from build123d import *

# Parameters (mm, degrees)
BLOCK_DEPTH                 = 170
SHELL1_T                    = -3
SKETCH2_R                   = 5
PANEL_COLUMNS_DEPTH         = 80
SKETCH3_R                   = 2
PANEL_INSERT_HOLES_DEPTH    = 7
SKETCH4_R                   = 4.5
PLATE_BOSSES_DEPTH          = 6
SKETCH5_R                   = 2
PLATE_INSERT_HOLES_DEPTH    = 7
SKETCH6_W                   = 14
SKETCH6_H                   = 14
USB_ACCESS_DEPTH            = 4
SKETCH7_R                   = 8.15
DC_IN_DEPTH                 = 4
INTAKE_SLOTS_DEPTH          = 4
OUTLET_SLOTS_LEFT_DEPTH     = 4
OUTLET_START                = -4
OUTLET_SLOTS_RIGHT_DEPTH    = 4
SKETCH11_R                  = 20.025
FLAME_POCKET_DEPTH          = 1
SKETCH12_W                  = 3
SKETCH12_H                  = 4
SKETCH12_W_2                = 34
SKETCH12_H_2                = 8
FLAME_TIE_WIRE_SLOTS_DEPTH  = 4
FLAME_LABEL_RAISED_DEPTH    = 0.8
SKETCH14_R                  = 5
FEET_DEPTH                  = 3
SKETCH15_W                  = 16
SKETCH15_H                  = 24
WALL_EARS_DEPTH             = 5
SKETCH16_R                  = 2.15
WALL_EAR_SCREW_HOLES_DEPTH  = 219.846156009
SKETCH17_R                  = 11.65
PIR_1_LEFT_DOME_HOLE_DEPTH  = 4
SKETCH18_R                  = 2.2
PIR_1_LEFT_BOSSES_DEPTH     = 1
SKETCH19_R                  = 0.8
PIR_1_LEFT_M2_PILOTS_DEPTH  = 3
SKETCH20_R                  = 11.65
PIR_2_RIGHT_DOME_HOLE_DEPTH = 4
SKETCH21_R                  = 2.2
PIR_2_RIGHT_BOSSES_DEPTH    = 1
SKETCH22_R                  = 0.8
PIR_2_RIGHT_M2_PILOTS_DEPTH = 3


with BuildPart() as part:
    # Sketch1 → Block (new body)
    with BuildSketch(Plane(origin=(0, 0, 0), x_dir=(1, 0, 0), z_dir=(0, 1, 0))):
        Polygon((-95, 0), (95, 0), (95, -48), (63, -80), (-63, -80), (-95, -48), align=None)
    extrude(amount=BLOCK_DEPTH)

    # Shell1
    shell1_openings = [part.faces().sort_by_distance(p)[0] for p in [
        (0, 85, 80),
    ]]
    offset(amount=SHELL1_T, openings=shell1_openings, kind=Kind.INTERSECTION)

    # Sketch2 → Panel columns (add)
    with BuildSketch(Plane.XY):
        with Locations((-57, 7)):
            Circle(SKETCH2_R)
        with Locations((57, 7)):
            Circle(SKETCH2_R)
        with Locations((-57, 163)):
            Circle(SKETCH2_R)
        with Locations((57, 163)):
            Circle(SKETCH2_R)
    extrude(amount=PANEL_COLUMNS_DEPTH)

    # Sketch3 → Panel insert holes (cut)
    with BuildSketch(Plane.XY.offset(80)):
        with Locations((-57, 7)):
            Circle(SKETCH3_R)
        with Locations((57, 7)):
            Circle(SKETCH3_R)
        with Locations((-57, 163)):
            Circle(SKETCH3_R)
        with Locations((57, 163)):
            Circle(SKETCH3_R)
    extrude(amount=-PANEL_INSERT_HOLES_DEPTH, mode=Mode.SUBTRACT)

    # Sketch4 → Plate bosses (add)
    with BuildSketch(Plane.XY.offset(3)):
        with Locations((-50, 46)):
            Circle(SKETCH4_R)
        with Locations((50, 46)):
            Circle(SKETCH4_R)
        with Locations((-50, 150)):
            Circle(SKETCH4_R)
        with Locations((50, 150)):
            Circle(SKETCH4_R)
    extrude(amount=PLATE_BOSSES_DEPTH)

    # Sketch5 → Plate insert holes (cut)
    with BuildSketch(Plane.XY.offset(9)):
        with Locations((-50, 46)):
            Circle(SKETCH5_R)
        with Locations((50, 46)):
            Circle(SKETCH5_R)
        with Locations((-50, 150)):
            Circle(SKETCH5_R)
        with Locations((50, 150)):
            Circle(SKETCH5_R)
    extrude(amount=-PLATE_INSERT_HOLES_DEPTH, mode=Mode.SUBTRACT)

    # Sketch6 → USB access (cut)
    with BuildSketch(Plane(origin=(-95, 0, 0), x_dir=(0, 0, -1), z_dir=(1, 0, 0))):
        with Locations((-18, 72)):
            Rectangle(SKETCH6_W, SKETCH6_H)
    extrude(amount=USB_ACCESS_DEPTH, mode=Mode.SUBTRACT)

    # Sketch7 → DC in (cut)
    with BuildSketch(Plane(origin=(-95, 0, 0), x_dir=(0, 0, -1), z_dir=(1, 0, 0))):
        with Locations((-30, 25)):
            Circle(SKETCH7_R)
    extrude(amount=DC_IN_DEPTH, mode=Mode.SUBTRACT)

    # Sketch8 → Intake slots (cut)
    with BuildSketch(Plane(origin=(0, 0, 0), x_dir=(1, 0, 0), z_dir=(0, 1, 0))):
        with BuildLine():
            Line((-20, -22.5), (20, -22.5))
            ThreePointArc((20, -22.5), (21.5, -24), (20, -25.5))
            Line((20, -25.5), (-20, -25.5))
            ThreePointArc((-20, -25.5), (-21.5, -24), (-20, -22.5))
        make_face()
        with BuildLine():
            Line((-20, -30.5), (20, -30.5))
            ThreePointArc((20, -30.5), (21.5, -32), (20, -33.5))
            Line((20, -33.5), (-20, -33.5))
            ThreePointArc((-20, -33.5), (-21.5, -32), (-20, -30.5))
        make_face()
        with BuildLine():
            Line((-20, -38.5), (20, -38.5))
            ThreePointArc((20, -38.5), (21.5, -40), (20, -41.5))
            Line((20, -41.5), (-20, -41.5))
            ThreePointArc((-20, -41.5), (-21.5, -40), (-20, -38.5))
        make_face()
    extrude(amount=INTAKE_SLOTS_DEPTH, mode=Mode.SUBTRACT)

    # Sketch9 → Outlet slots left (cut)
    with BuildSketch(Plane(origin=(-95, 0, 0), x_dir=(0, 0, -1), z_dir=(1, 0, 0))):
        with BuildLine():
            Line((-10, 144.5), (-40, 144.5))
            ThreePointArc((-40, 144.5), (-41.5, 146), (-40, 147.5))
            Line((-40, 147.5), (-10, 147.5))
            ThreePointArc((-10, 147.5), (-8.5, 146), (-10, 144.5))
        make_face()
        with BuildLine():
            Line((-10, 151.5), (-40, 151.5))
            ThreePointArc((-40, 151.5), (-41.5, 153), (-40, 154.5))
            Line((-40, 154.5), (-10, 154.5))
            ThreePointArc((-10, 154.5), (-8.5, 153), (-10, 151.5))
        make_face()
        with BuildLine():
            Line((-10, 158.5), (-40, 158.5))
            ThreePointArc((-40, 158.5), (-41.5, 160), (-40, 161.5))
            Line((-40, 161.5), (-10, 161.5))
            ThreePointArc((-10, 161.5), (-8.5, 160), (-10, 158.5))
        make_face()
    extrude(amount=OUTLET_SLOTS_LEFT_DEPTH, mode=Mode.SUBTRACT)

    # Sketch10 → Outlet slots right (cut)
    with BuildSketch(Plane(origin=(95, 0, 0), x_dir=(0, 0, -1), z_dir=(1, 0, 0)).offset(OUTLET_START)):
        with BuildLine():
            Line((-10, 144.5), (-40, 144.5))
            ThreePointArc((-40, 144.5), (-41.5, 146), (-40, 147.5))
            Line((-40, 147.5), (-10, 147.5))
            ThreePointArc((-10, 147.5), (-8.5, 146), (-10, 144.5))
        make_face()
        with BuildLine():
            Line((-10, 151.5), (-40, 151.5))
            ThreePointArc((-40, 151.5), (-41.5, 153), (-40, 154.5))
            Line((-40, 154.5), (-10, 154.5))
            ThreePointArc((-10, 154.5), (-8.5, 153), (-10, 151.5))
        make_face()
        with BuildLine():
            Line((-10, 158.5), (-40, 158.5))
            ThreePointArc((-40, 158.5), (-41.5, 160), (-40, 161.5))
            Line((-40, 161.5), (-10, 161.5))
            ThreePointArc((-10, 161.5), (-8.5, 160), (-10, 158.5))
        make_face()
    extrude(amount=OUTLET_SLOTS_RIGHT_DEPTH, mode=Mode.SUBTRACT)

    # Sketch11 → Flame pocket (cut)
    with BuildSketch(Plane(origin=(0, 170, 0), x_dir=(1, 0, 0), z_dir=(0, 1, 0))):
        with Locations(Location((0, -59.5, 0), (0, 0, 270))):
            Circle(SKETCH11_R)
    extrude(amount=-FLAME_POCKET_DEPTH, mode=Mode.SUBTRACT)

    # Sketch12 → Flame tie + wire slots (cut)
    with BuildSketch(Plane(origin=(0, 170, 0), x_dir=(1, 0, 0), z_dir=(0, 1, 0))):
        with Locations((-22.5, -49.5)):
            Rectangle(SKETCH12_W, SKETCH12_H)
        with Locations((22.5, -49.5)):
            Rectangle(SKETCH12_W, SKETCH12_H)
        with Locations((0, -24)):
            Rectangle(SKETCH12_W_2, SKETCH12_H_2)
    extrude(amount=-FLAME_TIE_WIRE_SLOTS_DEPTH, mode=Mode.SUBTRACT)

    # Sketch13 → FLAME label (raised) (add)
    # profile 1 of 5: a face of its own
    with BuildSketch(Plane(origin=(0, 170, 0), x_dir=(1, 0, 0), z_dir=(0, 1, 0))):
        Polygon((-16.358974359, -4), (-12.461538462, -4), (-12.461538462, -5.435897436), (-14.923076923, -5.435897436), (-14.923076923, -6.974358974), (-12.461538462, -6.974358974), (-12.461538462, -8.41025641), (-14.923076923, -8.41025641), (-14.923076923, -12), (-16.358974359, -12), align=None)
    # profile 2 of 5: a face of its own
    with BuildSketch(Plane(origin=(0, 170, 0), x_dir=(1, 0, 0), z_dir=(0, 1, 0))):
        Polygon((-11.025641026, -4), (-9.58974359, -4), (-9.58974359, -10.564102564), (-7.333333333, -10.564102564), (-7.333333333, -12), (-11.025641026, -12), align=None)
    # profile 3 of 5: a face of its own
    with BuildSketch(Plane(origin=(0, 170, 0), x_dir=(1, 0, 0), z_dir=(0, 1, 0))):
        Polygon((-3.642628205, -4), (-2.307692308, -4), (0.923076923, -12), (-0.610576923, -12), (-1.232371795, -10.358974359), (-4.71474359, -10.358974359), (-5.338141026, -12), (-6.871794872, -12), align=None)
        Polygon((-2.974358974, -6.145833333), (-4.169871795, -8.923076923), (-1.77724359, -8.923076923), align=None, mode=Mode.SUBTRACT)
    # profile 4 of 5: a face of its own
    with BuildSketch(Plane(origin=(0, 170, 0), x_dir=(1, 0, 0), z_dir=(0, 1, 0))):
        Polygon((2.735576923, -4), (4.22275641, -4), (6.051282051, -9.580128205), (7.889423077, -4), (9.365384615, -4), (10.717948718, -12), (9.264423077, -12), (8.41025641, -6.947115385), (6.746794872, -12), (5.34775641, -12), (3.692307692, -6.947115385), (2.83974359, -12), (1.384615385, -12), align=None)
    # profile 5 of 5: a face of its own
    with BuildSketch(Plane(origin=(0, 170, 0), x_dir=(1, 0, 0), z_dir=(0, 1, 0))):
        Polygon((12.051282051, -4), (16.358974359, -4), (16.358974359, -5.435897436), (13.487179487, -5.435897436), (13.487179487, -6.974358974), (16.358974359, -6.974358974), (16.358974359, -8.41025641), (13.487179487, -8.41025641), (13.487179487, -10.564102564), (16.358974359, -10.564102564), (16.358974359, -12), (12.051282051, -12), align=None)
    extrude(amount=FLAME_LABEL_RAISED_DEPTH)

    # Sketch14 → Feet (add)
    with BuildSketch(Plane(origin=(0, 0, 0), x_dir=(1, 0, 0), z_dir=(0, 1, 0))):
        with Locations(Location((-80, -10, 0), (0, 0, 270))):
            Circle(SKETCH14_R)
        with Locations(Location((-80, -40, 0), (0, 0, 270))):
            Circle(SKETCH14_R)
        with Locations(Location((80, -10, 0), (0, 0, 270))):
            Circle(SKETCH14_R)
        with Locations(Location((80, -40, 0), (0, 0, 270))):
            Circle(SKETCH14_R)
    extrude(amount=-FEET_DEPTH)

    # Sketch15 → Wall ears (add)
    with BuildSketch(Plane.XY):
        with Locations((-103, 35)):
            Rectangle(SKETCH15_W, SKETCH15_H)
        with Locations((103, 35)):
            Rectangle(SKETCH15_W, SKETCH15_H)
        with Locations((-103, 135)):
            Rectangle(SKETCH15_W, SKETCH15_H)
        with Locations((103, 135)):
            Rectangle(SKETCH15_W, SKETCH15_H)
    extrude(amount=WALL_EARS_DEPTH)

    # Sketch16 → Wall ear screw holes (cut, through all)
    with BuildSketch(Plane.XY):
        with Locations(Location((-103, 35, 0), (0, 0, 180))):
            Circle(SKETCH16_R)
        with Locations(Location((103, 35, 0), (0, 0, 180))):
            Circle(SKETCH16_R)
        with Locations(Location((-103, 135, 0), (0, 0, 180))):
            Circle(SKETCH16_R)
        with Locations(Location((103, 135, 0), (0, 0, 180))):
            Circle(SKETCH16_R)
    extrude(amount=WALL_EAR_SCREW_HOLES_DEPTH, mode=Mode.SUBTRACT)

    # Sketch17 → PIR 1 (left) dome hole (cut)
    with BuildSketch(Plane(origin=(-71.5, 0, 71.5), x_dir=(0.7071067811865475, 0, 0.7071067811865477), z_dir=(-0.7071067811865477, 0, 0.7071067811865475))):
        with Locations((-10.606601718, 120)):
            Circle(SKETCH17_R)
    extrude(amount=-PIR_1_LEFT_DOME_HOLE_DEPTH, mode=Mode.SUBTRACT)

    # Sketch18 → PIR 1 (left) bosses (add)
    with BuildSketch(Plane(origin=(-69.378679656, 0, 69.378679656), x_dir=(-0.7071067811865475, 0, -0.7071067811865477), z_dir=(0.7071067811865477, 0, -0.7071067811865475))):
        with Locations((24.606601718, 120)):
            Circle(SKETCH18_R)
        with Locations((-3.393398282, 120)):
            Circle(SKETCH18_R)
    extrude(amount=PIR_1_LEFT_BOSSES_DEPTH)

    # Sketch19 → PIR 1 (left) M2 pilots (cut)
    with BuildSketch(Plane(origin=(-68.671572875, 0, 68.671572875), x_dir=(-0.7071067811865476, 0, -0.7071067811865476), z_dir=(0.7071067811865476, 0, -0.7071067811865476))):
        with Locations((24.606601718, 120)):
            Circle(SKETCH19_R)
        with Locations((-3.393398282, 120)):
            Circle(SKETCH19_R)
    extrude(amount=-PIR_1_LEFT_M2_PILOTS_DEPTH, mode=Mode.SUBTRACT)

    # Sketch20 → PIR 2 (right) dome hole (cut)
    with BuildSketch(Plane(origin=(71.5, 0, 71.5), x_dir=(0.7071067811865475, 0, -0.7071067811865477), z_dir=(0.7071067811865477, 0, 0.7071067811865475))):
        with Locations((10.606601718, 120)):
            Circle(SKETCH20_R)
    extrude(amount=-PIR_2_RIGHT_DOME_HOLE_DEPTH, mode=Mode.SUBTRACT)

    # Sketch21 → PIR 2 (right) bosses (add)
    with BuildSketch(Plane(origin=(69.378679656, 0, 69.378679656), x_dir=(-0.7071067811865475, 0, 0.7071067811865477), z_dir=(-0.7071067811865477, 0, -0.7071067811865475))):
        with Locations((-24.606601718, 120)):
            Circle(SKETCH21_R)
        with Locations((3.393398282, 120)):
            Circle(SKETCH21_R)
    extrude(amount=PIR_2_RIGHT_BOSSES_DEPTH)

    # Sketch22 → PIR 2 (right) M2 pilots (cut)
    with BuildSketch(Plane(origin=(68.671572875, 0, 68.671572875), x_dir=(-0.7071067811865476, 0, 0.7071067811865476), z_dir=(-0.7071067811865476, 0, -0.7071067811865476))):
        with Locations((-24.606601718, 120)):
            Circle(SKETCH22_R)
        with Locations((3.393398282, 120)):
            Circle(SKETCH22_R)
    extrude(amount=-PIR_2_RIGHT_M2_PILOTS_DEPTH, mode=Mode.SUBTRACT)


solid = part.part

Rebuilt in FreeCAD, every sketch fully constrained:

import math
import FreeCAD as App
import Part
import Sketcher
Q = App.Units.Quantity


def faces_at(feature, points):
    """Names of the faces that lie closest to the given points."""
    faces = feature.Shape.Faces
    near = lambda p: min(range(len(faces)), key=lambda i: faces[i].distToShape(Part.Vertex(*p))[0])
    return sorted({f"Face{near(p) + 1}" for p in points})


def add_polygon(sketch, points):
    """Adds a closed chain of lines whose ends are joined by coincident constraints."""
    first, n = sketch.GeometryCount, len(points)
    for a, b in zip(points, points[1:] + points[:1]):
        sketch.addGeometry(Part.LineSegment(App.Vector(*a, 0), App.Vector(*b, 0)), False)
    for i in range(n):
        sketch.addConstraint(Sketcher.Constraint("Coincident", first + i, 2, first + (i + 1) % n, 1))

doc = App.newDocument("Part")
body = doc.addObject("PartDesign::Body", "Body")

sketch1 = doc.addObject("Sketcher::SketchObject", "Sketch")
body.addObject(sketch1)
sketch1.AttachmentSupport = (doc.XZ_Plane, [""])
sketch1.MapMode = "FlatFace"
add_polygon(sketch1, [(95, 0), (-95, 0), (-95, 48), (-63, 80), (63, 80), (95, 48)])
sketch1.addConstraint([
    Sketcher.Constraint("Horizontal", 0),
    Sketcher.Constraint("Vertical", 1),
    Sketcher.Constraint("Horizontal", 3),
    Sketcher.Constraint("Vertical", 5),
    Sketcher.Constraint("Symmetric", 0, 2, 5, 2, -1, 1),
    Sketcher.Constraint("Perpendicular", 2, 4),
    Sketcher.Constraint("Horizontal", 1, 2, 4, 2),
    Sketcher.Constraint("Equal", 2, 4),
    Sketcher.Constraint("DistanceX", 0, 2, 0, 1, Q("190 mm")),
    Sketcher.Constraint("DistanceX", 3, 1, 3, 2, Q("126 mm")),
    Sketcher.Constraint("DistanceY", 1, 1, 1, 2, Q("48 mm")),
])
pad1 = doc.addObject("PartDesign::Pad", "Pad")
body.addObject(pad1)
pad1.Profile = sketch1
pad1.Length = 170
pad1.Reversed = True
doc.recompute()

thickness = doc.addObject("PartDesign::Thickness", "Thickness")
body.addObject(thickness)
thickness.Base = (pad1, faces_at(pad1, [(0, 85, 80)]))
thickness.Value = 3
thickness.Reversed = True
thickness.Join = "Intersection"

sketch2 = doc.addObject("Sketcher::SketchObject", "Sketch001")
body.addObject(sketch2)
sketch2.AttachmentSupport = (doc.XY_Plane, [""])
sketch2.MapMode = "FlatFace"
sketch2.addGeometry([
    Part.Circle(App.Vector(-57, 7, 0), App.Vector(0, 0, 1), 5),
    Part.Circle(App.Vector(57, 7, 0), App.Vector(0, 0, 1), 5),
    Part.Circle(App.Vector(-57, 163, 0), App.Vector(0, 0, 1), 5),
    Part.Circle(App.Vector(57, 163, 0), App.Vector(0, 0, 1), 5),
], False)
sketch2.addConstraint([
    Sketcher.Constraint("Equal", 0, 1),
    Sketcher.Constraint("Equal", 1, 2),
    Sketcher.Constraint("Equal", 2, 3),
    Sketcher.Constraint("Symmetric", 0, 3, 1, 3, -2),
    Sketcher.Constraint("Symmetric", 2, 3, 3, 3, -2),
    Sketcher.Constraint("Vertical", 0, 3, 2, 3),
    Sketcher.Constraint("Diameter", 0, Q("10 mm")),
    Sketcher.Constraint("DistanceX", 0, 3, -1, 1, Q("57 mm")),
    Sketcher.Constraint("DistanceY", -1, 1, 0, 3, Q("7 mm")),
    Sketcher.Constraint("DistanceY", -1, 1, 2, 3, Q("163 mm")),
])
pad2 = doc.addObject("PartDesign::Pad", "Pad001")
body.addObject(pad2)
pad2.Profile = sketch2
pad2.Length = 80

sketch3 = doc.addObject("Sketcher::SketchObject", "Sketch002")
body.addObject(sketch3)
sketch3.AttachmentSupport = (doc.XY_Plane, [""])
sketch3.MapMode = "FlatFace"
sketch3.AttachmentOffset = App.Placement(App.Vector(0, 0, 80), App.Rotation())
sketch3.addGeometry([
    Part.Circle(App.Vector(-57, 7, 0), App.Vector(0, 0, 1), 2),
    Part.Circle(App.Vector(57, 7, 0), App.Vector(0, 0, 1), 2),
    Part.Circle(App.Vector(-57, 163, 0), App.Vector(0, 0, 1), 2),
    Part.Circle(App.Vector(57, 163, 0), App.Vector(0, 0, 1), 2),
], False)
sketch3.addConstraint([
    Sketcher.Constraint("Equal", 0, 1),
    Sketcher.Constraint("Equal", 1, 2),
    Sketcher.Constraint("Equal", 2, 3),
    Sketcher.Constraint("Symmetric", 0, 3, 1, 3, -2),
    Sketcher.Constraint("Symmetric", 2, 3, 3, 3, -2),
    Sketcher.Constraint("Vertical", 0, 3, 2, 3),
    Sketcher.Constraint("Diameter", 0, Q("4 mm")),
    Sketcher.Constraint("DistanceX", 0, 3, -1, 1, Q("57 mm")),
    Sketcher.Constraint("DistanceY", -1, 1, 0, 3, Q("7 mm")),
    Sketcher.Constraint("DistanceY", -1, 1, 2, 3, Q("163 mm")),
])
pocket1 = doc.addObject("PartDesign::Pocket", "Pocket")
body.addObject(pocket1)
pocket1.Profile = sketch3
pocket1.Length = 7

sketch4 = doc.addObject("Sketcher::SketchObject", "Sketch003")
body.addObject(sketch4)
sketch4.AttachmentSupport = (doc.XY_Plane, [""])
sketch4.MapMode = "FlatFace"
sketch4.AttachmentOffset = App.Placement(App.Vector(0, 0, 3), App.Rotation())
sketch4.addGeometry([
    Part.Circle(App.Vector(-50, 46, 0), App.Vector(0, 0, 1), 4.5),
    Part.Circle(App.Vector(50, 46, 0), App.Vector(0, 0, 1), 4.5),
    Part.Circle(App.Vector(-50, 150, 0), App.Vector(0, 0, 1), 4.5),
    Part.Circle(App.Vector(50, 150, 0), App.Vector(0, 0, 1), 4.5),
], False)
sketch4.addConstraint([
    Sketcher.Constraint("Equal", 0, 1),
    Sketcher.Constraint("Equal", 1, 2),
    Sketcher.Constraint("Equal", 2, 3),
    Sketcher.Constraint("Symmetric", 0, 3, 1, 3, -2),
    Sketcher.Constraint("Symmetric", 2, 3, 3, 3, -2),
    Sketcher.Constraint("Vertical", 0, 3, 2, 3),
    Sketcher.Constraint("Diameter", 0, Q("9 mm")),
    Sketcher.Constraint("DistanceX", 0, 3, -1, 1, Q("50 mm")),
    Sketcher.Constraint("DistanceY", -1, 1, 0, 3, Q("46 mm")),
    Sketcher.Constraint("DistanceY", -1, 1, 2, 3, Q("150 mm")),
])
pad3 = doc.addObject("PartDesign::Pad", "Pad002")
body.addObject(pad3)
pad3.Profile = sketch4
pad3.Length = 6

sketch5 = doc.addObject("Sketcher::SketchObject", "Sketch004")
body.addObject(sketch5)
sketch5.AttachmentSupport = (doc.XY_Plane, [""])
sketch5.MapMode = "FlatFace"
sketch5.AttachmentOffset = App.Placement(App.Vector(0, 0, 9), App.Rotation())
sketch5.addGeometry([
    Part.Circle(App.Vector(-50, 46, 0), App.Vector(0, 0, 1), 2),
    Part.Circle(App.Vector(50, 46, 0), App.Vector(0, 0, 1), 2),
    Part.Circle(App.Vector(-50, 150, 0), App.Vector(0, 0, 1), 2),
    Part.Circle(App.Vector(50, 150, 0), App.Vector(0, 0, 1), 2),
], False)
sketch5.addConstraint([
    Sketcher.Constraint("Equal", 0, 1),
    Sketcher.Constraint("Equal", 1, 2),
    Sketcher.Constraint("Equal", 2, 3),
    Sketcher.Constraint("Symmetric", 0, 3, 1, 3, -2),
    Sketcher.Constraint("Symmetric", 2, 3, 3, 3, -2),
    Sketcher.Constraint("Vertical", 0, 3, 2, 3),
    Sketcher.Constraint("Diameter", 0, Q("4 mm")),
    Sketcher.Constraint("DistanceX", 0, 3, -1, 1, Q("50 mm")),
    Sketcher.Constraint("DistanceY", -1, 1, 0, 3, Q("46 mm")),
    Sketcher.Constraint("DistanceY", -1, 1, 2, 3, Q("150 mm")),
])
pocket2 = doc.addObject("PartDesign::Pocket", "Pocket001")
body.addObject(pocket2)
pocket2.Profile = sketch5
pocket2.Length = 7

sketch6 = doc.addObject("Sketcher::SketchObject", "Sketch005")
body.addObject(sketch6)
sketch6.AttachmentSupport = (doc.YZ_Plane, [""])
sketch6.MapMode = "FlatFace"
sketch6.AttachmentOffset = App.Placement(App.Vector(0, 0, -95), App.Rotation())
add_polygon(sketch6, [(79, 25), (65, 25), (65, 11), (79, 11)])
sketch6.addConstraint([
    Sketcher.Constraint("Horizontal", 0),
    Sketcher.Constraint("Vertical", 1),
    Sketcher.Constraint("Horizontal", 2),
    Sketcher.Constraint("Vertical", 3),
    Sketcher.Constraint("Equal", 2, 1),
    Sketcher.Constraint("DistanceX", 0, 2, 0, 1, Q("14 mm")),
    Sketcher.Constraint("DistanceX", -1, 1, 0, 2, Q("65 mm")),
    Sketcher.Constraint("DistanceY", -1, 1, 0, 2, Q("25 mm")),
])
pocket3 = doc.addObject("PartDesign::Pocket", "Pocket002")
body.addObject(pocket3)
pocket3.Profile = sketch6
pocket3.Length = 4
pocket3.Reversed = True

sketch7 = doc.addObject("Sketcher::SketchObject", "Sketch006")
body.addObject(sketch7)
sketch7.AttachmentSupport = (doc.YZ_Plane, [""])
sketch7.MapMode = "FlatFace"
sketch7.AttachmentOffset = App.Placement(App.Vector(0, 0, -95), App.Rotation())
sketch7.addGeometry(Part.Circle(App.Vector(25, 30, 0), App.Vector(0, 0, 1), 8), False)
sketch7.addConstraint([
    Sketcher.Constraint("Diameter", 0, Q("16.3 mm")),
    Sketcher.Constraint("DistanceX", -1, 1, 0, 3, Q("25 mm")),
    Sketcher.Constraint("DistanceY", -1, 1, 0, 3, Q("30 mm")),
])
pocket4 = doc.addObject("PartDesign::Pocket", "Pocket003")
body.addObject(pocket4)
pocket4.Profile = sketch7
pocket4.Length = 4
pocket4.Reversed = True

sketch8 = doc.addObject("Sketcher::SketchObject", "Sketch007")
body.addObject(sketch8)
sketch8.AttachmentSupport = (doc.XZ_Plane, [""])
sketch8.MapMode = "FlatFace"
sketch8.addGeometry([
    Part.LineSegment(App.Vector(20, 22.5, 0), App.Vector(-20, 22.5, 0)),
    Part.ArcOfCircle(Part.Circle(App.Vector(-20, 24, 0), App.Vector(0, 0, 1), 1.5), math.radians(90), math.radians(270)),
    Part.LineSegment(App.Vector(-20, 25.5, 0), App.Vector(20, 25.5, 0)),
    Part.ArcOfCircle(Part.Circle(App.Vector(20, 24, 0), App.Vector(0, 0, 1), 1.5), math.radians(-90), math.radians(90)),
    Part.LineSegment(App.Vector(20, 30.5, 0), App.Vector(-20, 30.5, 0)),
    Part.ArcOfCircle(Part.Circle(App.Vector(-20, 32, 0), App.Vector(0, 0, 1), 1.5), math.radians(90), math.radians(270)),
    Part.LineSegment(App.Vector(-20, 33.5, 0), App.Vector(20, 33.5, 0)),
    Part.ArcOfCircle(Part.Circle(App.Vector(20, 32, 0), App.Vector(0, 0, 1), 1.5), math.radians(-90), math.radians(90)),
    Part.LineSegment(App.Vector(20, 38.5, 0), App.Vector(-20, 38.5, 0)),
    Part.ArcOfCircle(Part.Circle(App.Vector(-20, 40, 0), App.Vector(0, 0, 1), 1.5), math.radians(90), math.radians(270)),
    Part.LineSegment(App.Vector(-20, 41.5, 0), App.Vector(20, 41.5, 0)),
    Part.ArcOfCircle(Part.Circle(App.Vector(20, 40, 0), App.Vector(0, 0, 1), 1.5), math.radians(-90), math.radians(90)),
], False)
sketch8.addConstraint([
    Sketcher.Constraint("Tangent", 0, 2, 1, 2),
    Sketcher.Constraint("Tangent", 1, 1, 2, 1),
    Sketcher.Constraint("Tangent", 2, 2, 3, 2),
    Sketcher.Constraint("Tangent", 3, 1, 0, 1),
    Sketcher.Constraint("Tangent", 4, 2, 5, 2),
    Sketcher.Constraint("Tangent", 5, 1, 6, 1),
    Sketcher.Constraint("Tangent", 6, 2, 7, 2),
    Sketcher.Constraint("Tangent", 7, 1, 4, 1),
    Sketcher.Constraint("Tangent", 8, 2, 9, 2),
    Sketcher.Constraint("Tangent", 9, 1, 10, 1),
    Sketcher.Constraint("Tangent", 10, 2, 11, 2),
    Sketcher.Constraint("Tangent", 11, 1, 8, 1),
    Sketcher.Constraint("Horizontal", 0),
    Sketcher.Constraint("Horizontal", 2),
    Sketcher.Constraint("Horizontal", 4),
    Sketcher.Constraint("Horizontal", 6),
    Sketcher.Constraint("Horizontal", 8),
    Sketcher.Constraint("Horizontal", 10),
    Sketcher.Constraint("Equal", 3, 5),
    Sketcher.Constraint("Equal", 7, 9),
    Sketcher.Constraint("Vertical", 1, 3, 5, 3),
    Sketcher.Constraint("Vertical", 3, 3, 7, 3),
    Sketcher.Constraint("Vertical", 5, 3, 9, 3),
    Sketcher.Constraint("Vertical", 7, 3, 11, 3),
    Sketcher.Constraint("Radius", 1, Q("1.5 mm")),
    Sketcher.Constraint("DistanceX", 0, 2, 0, 1, Q("40 mm")),
    Sketcher.Constraint("DistanceX", 1, 3, -1, 1, Q("20 mm")),
    Sketcher.Constraint("DistanceY", -1, 1, 1, 3, Q("24 mm")),
    Sketcher.Constraint("DistanceY", -1, 1, 5, 3, Q("32 mm")),
    Sketcher.Constraint("DistanceY", -1, 1, 9, 3, Q("40 mm")),
])
pocket5 = doc.addObject("PartDesign::Pocket", "Pocket004")
body.addObject(pocket5)
pocket5.Profile = sketch8
pocket5.Length = 4

sketch9 = doc.addObject("Sketcher::SketchObject", "Sketch008")
body.addObject(sketch9)
sketch9.AttachmentSupport = (doc.YZ_Plane, [""])
sketch9.MapMode = "FlatFace"
sketch9.AttachmentOffset = App.Placement(App.Vector(0, 0, -95), App.Rotation())
sketch9.addGeometry([
    Part.LineSegment(App.Vector(144.5, 40, 0), App.Vector(144.5, 10, 0)),
    Part.ArcOfCircle(Part.Circle(App.Vector(146, 10, 0), App.Vector(0, 0, 1), 1.5), math.radians(180), math.radians(360)),
    Part.LineSegment(App.Vector(147.5, 10, 0), App.Vector(147.5, 40, 0)),
    Part.ArcOfCircle(Part.Circle(App.Vector(146, 40, 0), App.Vector(0, 0, 1), 1.5), math.radians(0), math.radians(180)),
    Part.LineSegment(App.Vector(151.5, 40, 0), App.Vector(151.5, 10, 0)),
    Part.ArcOfCircle(Part.Circle(App.Vector(153, 10, 0), App.Vector(0, 0, 1), 1.5), math.radians(180), math.radians(360)),
    Part.LineSegment(App.Vector(154.5, 10, 0), App.Vector(154.5, 40, 0)),
    Part.ArcOfCircle(Part.Circle(App.Vector(153, 40, 0), App.Vector(0, 0, 1), 1.5), math.radians(0), math.radians(180)),
    Part.LineSegment(App.Vector(158.5, 40, 0), App.Vector(158.5, 10, 0)),
    Part.ArcOfCircle(Part.Circle(App.Vector(160, 10, 0), App.Vector(0, 0, 1), 1.5), math.radians(180), math.radians(360)),
    Part.LineSegment(App.Vector(161.5, 10, 0), App.Vector(161.5, 40, 0)),
    Part.ArcOfCircle(Part.Circle(App.Vector(160, 40, 0), App.Vector(0, 0, 1), 1.5), math.radians(0), math.radians(180)),
], False)
sketch9.addConstraint([
    Sketcher.Constraint("Tangent", 0, 2, 1, 1),
    Sketcher.Constraint("Tangent", 1, 2, 2, 1),
    Sketcher.Constraint("Tangent", 2, 2, 3, 1),
    Sketcher.Constraint("Tangent", 3, 2, 0, 1),
    Sketcher.Constraint("Tangent", 4, 2, 5, 1),
    Sketcher.Constraint("Tangent", 5, 2, 6, 1),
    Sketcher.Constraint("Tangent", 6, 2, 7, 1),
    Sketcher.Constraint("Tangent", 7, 2, 4, 1),
    Sketcher.Constraint("Tangent", 8, 2, 9, 1),
    Sketcher.Constraint("Tangent", 9, 2, 10, 1),
    Sketcher.Constraint("Tangent", 10, 2, 11, 1),
    Sketcher.Constraint("Tangent", 11, 2, 8, 1),
    Sketcher.Constraint("Vertical", 0),
    Sketcher.Constraint("Vertical", 2),
    Sketcher.Constraint("Vertical", 4),
    Sketcher.Constraint("Vertical", 6),
    Sketcher.Constraint("Vertical", 8),
    Sketcher.Constraint("Vertical", 10),
    Sketcher.Constraint("Equal", 3, 5),
    Sketcher.Constraint("Equal", 7, 9),
    Sketcher.Constraint("Horizontal", 1, 3, 5, 3),
    Sketcher.Constraint("Horizontal", 3, 3, 7, 3),
    Sketcher.Constraint("Horizontal", 5, 3, 9, 3),
    Sketcher.Constraint("Horizontal", 7, 3, 11, 3),
    Sketcher.Constraint("Radius", 1, Q("1.5 mm")),
    Sketcher.Constraint("DistanceY", 0, 2, 0, 1, Q("30 mm")),
    Sketcher.Constraint("DistanceX", -1, 1, 1, 3, Q("146 mm")),
    Sketcher.Constraint("DistanceY", -1, 1, 1, 3, Q("10 mm")),
    Sketcher.Constraint("DistanceX", -1, 1, 5, 3, Q("153 mm")),
    Sketcher.Constraint("DistanceX", -1, 1, 9, 3, Q("160 mm")),
])
pocket6 = doc.addObject("PartDesign::Pocket", "Pocket005")
body.addObject(pocket6)
pocket6.Profile = sketch9
pocket6.Length = 4
pocket6.Reversed = True

sketch10 = doc.addObject("Sketcher::SketchObject", "Sketch009")
body.addObject(sketch10)
sketch10.AttachmentSupport = (doc.YZ_Plane, [""])
sketch10.MapMode = "FlatFace"
sketch10.AttachmentOffset = App.Placement(App.Vector(0, 0, 91), App.Rotation())
sketch10.addGeometry([
    Part.LineSegment(App.Vector(144.5, 40, 0), App.Vector(144.5, 10, 0)),
    Part.ArcOfCircle(Part.Circle(App.Vector(146, 10, 0), App.Vector(0, 0, 1), 1.5), math.radians(180), math.radians(360)),
    Part.LineSegment(App.Vector(147.5, 10, 0), App.Vector(147.5, 40, 0)),
    Part.ArcOfCircle(Part.Circle(App.Vector(146, 40, 0), App.Vector(0, 0, 1), 1.5), math.radians(0), math.radians(180)),
    Part.LineSegment(App.Vector(151.5, 40, 0), App.Vector(151.5, 10, 0)),
    Part.ArcOfCircle(Part.Circle(App.Vector(153, 10, 0), App.Vector(0, 0, 1), 1.5), math.radians(180), math.radians(360)),
    Part.LineSegment(App.Vector(154.5, 10, 0), App.Vector(154.5, 40, 0)),
    Part.ArcOfCircle(Part.Circle(App.Vector(153, 40, 0), App.Vector(0, 0, 1), 1.5), math.radians(0), math.radians(180)),
    Part.LineSegment(App.Vector(158.5, 40, 0), App.Vector(158.5, 10, 0)),
    Part.ArcOfCircle(Part.Circle(App.Vector(160, 10, 0), App.Vector(0, 0, 1), 1.5), math.radians(180), math.radians(360)),
    Part.LineSegment(App.Vector(161.5, 10, 0), App.Vector(161.5, 40, 0)),
    Part.ArcOfCircle(Part.Circle(App.Vector(160, 40, 0), App.Vector(0, 0, 1), 1.5), math.radians(0), math.radians(180)),
], False)
sketch10.addConstraint([
    Sketcher.Constraint("Tangent", 0, 2, 1, 1),
    Sketcher.Constraint("Tangent", 1, 2, 2, 1),
    Sketcher.Constraint("Tangent", 2, 2, 3, 1),
    Sketcher.Constraint("Tangent", 3, 2, 0, 1),
    Sketcher.Constraint("Tangent", 4, 2, 5, 1),
    Sketcher.Constraint("Tangent", 5, 2, 6, 1),
    Sketcher.Constraint("Tangent", 6, 2, 7, 1),
    Sketcher.Constraint("Tangent", 7, 2, 4, 1),
    Sketcher.Constraint("Tangent", 8, 2, 9, 1),
    Sketcher.Constraint("Tangent", 9, 2, 10, 1),
    Sketcher.Constraint("Tangent", 10, 2, 11, 1),
    Sketcher.Constraint("Tangent", 11, 2, 8, 1),
    Sketcher.Constraint("Vertical", 0),
    Sketcher.Constraint("Vertical", 2),
    Sketcher.Constraint("Vertical", 4),
    Sketcher.Constraint("Vertical", 6),
    Sketcher.Constraint("Vertical", 8),
    Sketcher.Constraint("Vertical", 10),
    Sketcher.Constraint("Equal", 3, 5),
    Sketcher.Constraint("Equal", 7, 9),
    Sketcher.Constraint("Horizontal", 1, 3, 5, 3),
    Sketcher.Constraint("Horizontal", 3, 3, 7, 3),
    Sketcher.Constraint("Horizontal", 5, 3, 9, 3),
    Sketcher.Constraint("Horizontal", 7, 3, 11, 3),
    Sketcher.Constraint("Radius", 1, Q("1.5 mm")),
    Sketcher.Constraint("DistanceY", 0, 2, 0, 1, Q("30 mm")),
    Sketcher.Constraint("DistanceX", -1, 1, 1, 3, Q("146 mm")),
    Sketcher.Constraint("DistanceY", -1, 1, 1, 3, Q("10 mm")),
    Sketcher.Constraint("DistanceX", -1, 1, 5, 3, Q("153 mm")),
    Sketcher.Constraint("DistanceX", -1, 1, 9, 3, Q("160 mm")),
])
pocket7 = doc.addObject("PartDesign::Pocket", "Pocket006")
body.addObject(pocket7)
pocket7.Profile = sketch10
pocket7.Length = 4
pocket7.Reversed = True

sketch11 = doc.addObject("Sketcher::SketchObject", "Sketch010")
body.addObject(sketch11)
sketch11.AttachmentSupport = (doc.XZ_Plane, [""])
sketch11.MapMode = "FlatFace"
sketch11.AttachmentOffset = App.Placement(App.Vector(0, 0, -170), App.Rotation())
sketch11.addGeometry(Part.Circle(App.Vector(0, 60, 0), App.Vector(0, 0, 1), 20), False)
sketch11.addConstraint([
    Sketcher.Constraint("PointOnObject", 0, 3, -2),
    Sketcher.Constraint("Diameter", 0, Q("40.05 mm")),
    Sketcher.Constraint("DistanceY", -1, 1, 0, 3, Q("59.5 mm")),
])
pocket8 = doc.addObject("PartDesign::Pocket", "Pocket007")
body.addObject(pocket8)
pocket8.Profile = sketch11
pocket8.Length = 1
pocket8.Reversed = True

sketch12 = doc.addObject("Sketcher::SketchObject", "Sketch011")
body.addObject(sketch12)
sketch12.AttachmentSupport = (doc.XZ_Plane, [""])
sketch12.MapMode = "FlatFace"
sketch12.AttachmentOffset = App.Placement(App.Vector(0, 0, -170), App.Rotation())
add_polygon(sketch12, [(-24, 47.5), (-24, 51.5), (-21, 51.5), (-21, 47.5)])
add_polygon(sketch12, [(21, 47.5), (21, 51.5), (24, 51.5), (24, 47.5)])
add_polygon(sketch12, [(-17, 20), (-17, 28), (17, 28), (17, 20)])
sketch12.addConstraint([
    Sketcher.Constraint("Vertical", 0),
    Sketcher.Constraint("Horizontal", 1),
    Sketcher.Constraint("Vertical", 2),
    Sketcher.Constraint("Horizontal", 3),
    Sketcher.Constraint("Vertical", 4),
    Sketcher.Constraint("Horizontal", 5),
    Sketcher.Constraint("Vertical", 6),
    Sketcher.Constraint("Horizontal", 7),
    Sketcher.Constraint("Vertical", 8),
    Sketcher.Constraint("Horizontal", 9),
    Sketcher.Constraint("Vertical", 10),
    Sketcher.Constraint("Horizontal", 11),
    Sketcher.Constraint("Symmetric", 1, 2, 4, 2, -2),
    Sketcher.Constraint("Symmetric", 3, 2, 6, 2, -2),
    Sketcher.Constraint("DistanceX", 1, 1, 1, 2, Q("3 mm")),
    Sketcher.Constraint("DistanceX", 9, 1, 9, 2, Q("34 mm")),
    Sketcher.Constraint("DistanceY", 0, 1, 0, 2, Q("4 mm")),
    Sketcher.Constraint("DistanceY", 8, 1, 8, 2, Q("8 mm")),
    Sketcher.Constraint("DistanceX", 0, 2, -1, 1, Q("24 mm")),
    Sketcher.Constraint("DistanceX", 8, 2, -1, 1, Q("17 mm")),
    Sketcher.Constraint("DistanceY", -1, 1, 8, 2, Q("28 mm")),
    Sketcher.Constraint("DistanceY", -1, 1, 0, 2, Q("51.5 mm")),
])
pocket9 = doc.addObject("PartDesign::Pocket", "Pocket008")
body.addObject(pocket9)
pocket9.Profile = sketch12
pocket9.Length = 4
pocket9.Reversed = True

sketch13 = doc.addObject("Sketcher::SketchObject", "Sketch012")
body.addObject(sketch13)
sketch13.AttachmentSupport = (doc.XZ_Plane, [""])
sketch13.MapMode = "FlatFace"
sketch13.AttachmentOffset = App.Placement(App.Vector(0, 0, -170), App.Rotation())
add_polygon(sketch13, [(-12.5, 4), (-16.4, 4), (-16.4, 12), (-14.9, 12), (-14.9, 8.4), (-12.5, 8.4), (-12.5, 7), (-14.9, 7), (-14.9, 5.4), (-12.5, 5.4)])
add_polygon(sketch13, [(-9.6, 4), (-11, 4), (-11, 12), (-7.3, 12), (-7.3, 10.6), (-9.6, 10.6)])
add_polygon(sketch13, [(-2.3, 4), (-3.6, 4), (-6.9, 12), (-5.3, 12), (-4.7, 10.4), (-1.2, 10.4), (-0.6, 12), (0.9, 12)])
add_polygon(sketch13, [(-3, 6.1), (-1.8, 8.9), (-4.2, 8.9)])
add_polygon(sketch13, [(4.2, 4), (2.7, 4), (1.4, 12), (2.8, 12), (3.7, 6.9), (5.3, 12), (6.7, 12), (8.4, 6.9), (9.3, 12), (10.7, 12), (9.4, 4), (7.9, 4), (6.1, 9.6)])
add_polygon(sketch13, [(16.4, 4), (12.1, 4), (12.1, 12), (16.4, 12), (16.4, 10.6), (13.5, 10.6), (13.5, 8.4), (16.4, 8.4), (16.4, 7), (13.5, 7), (13.5, 5.4), (16.4, 5.4)])
sketch13.addConstraint([
    Sketcher.Constraint("Horizontal", 0),
    Sketcher.Constraint("Vertical", 1),
    Sketcher.Constraint("Horizontal", 2),
    Sketcher.Constraint("Vertical", 3),
    Sketcher.Constraint("Horizontal", 4),
    Sketcher.Constraint("Vertical", 5),
    Sketcher.Constraint("Horizontal", 6),
    Sketcher.Constraint("Vertical", 7),
    Sketcher.Constraint("Horizontal", 8),
    Sketcher.Constraint("Vertical", 9),
    Sketcher.Constraint("Horizontal", 10),
    Sketcher.Constraint("Vertical", 11),
    Sketcher.Constraint("Horizontal", 12),
    Sketcher.Constraint("Vertical", 13),
    Sketcher.Constraint("Horizontal", 14),
    Sketcher.Constraint("Vertical", 15),
    Sketcher.Constraint("Horizontal", 16),
    Sketcher.Constraint("Horizontal", 18),
    Sketcher.Constraint("Horizontal", 20),
    Sketcher.Constraint("Horizontal", 22),
    Sketcher.Constraint("Horizontal", 25),
    Sketcher.Constraint("Horizontal", 27),
    Sketcher.Constraint("Horizontal", 29),
    Sketcher.Constraint("Horizontal", 32),
    Sketcher.Constraint("Horizontal", 35),
    Sketcher.Constraint("Horizontal", 37),
    Sketcher.Constraint("Horizontal", 40),
    Sketcher.Constraint("Vertical", 41),
    Sketcher.Constraint("Horizontal", 42),
    Sketcher.Constraint("Vertical", 43),
    Sketcher.Constraint("Horizontal", 44),
    Sketcher.Constraint("Vertical", 45),
    Sketcher.Constraint("Horizontal", 46),
    Sketcher.Constraint("Vertical", 47),
    Sketcher.Constraint("Horizontal", 48),
    Sketcher.Constraint("Vertical", 49),
    Sketcher.Constraint("Horizontal", 50),
    Sketcher.Constraint("Vertical", 51),
    Sketcher.Constraint("Symmetric", 1, 2, 42, 2, -2),
    Sketcher.Constraint("Symmetric", 0, 2, 51, 2, -2),
    Sketcher.Constraint("Horizontal", 9, 2, 10, 2),
    Sketcher.Constraint("Horizontal", 2, 2, 11, 2),
    Sketcher.Constraint("Horizontal", 15, 2, 16, 2),
    Sketcher.Constraint("Horizontal", 12, 2, 17, 2),
    Sketcher.Constraint("Horizontal", 18, 2, 21, 2),
    Sketcher.Constraint("Horizontal", 23, 2, 27, 2),
    Sketcher.Constraint("Horizontal", 22, 2, 28, 2),
    Sketcher.Constraint("Horizontal", 29, 2, 31, 2),
    Sketcher.Constraint("Horizontal", 30, 2, 33, 2),
    Sketcher.Constraint("Horizontal", 32, 2, 34, 2),
    Sketcher.Constraint("Horizontal", 27, 2, 36, 2),
    Sketcher.Constraint("Horizontal", 14, 2, 43, 2),
    Sketcher.Constraint("Horizontal", 4, 2, 45, 2),
    Sketcher.Constraint("Horizontal", 6, 2, 47, 2),
    Sketcher.Constraint("Horizontal", 8, 2, 49, 2),
    Sketcher.Constraint("Vertical", 3, 2, 6, 2),
    Sketcher.Constraint("Vertical", 5, 2, 8, 2),
    Sketcher.Constraint("Vertical", 43, 2, 46, 2),
    Sketcher.Constraint("Vertical", 45, 2, 48, 2),
    Sketcher.Constraint("Equal", 2, 10),
    Sketcher.Constraint("Equal", 18, 22),
    Sketcher.Constraint("Equal", 10, 5),
    Sketcher.Constraint("Equal", 5, 9),
    Sketcher.Constraint("Equal", 9, 13),
    Sketcher.Constraint("DistanceY", 1, 1, 1, 2, Q("8 mm")),
    Sketcher.Constraint("DistanceY", -1, 1, 0, 2, Q("4 mm")),
    Sketcher.Constraint("DistanceX", 38, 2, 41, 2, Q("6 mm")),
    Sketcher.Constraint("DistanceX", 14, 2, 19, 2, Q("4.875 mm")),
    Sketcher.Constraint("DistanceX", 4, 1, 4, 2, Q("2.461538 mm")),
    Sketcher.Constraint("DistanceX", 14, 2, 14, 1, Q("2.25641 mm")),
    Sketcher.Constraint("DistanceX", 20, 1, 20, 2, Q("3.482372 mm")),
    Sketcher.Constraint("DistanceX", 25, 2, 25, 1, Q("2.392628 mm")),
    Sketcher.Constraint("DistanceX", 27, 2, 27, 1, Q("1.487179 mm")),
    Sketcher.Constraint("DistanceX", 29, 1, 29, 2, Q("1.455128 mm")),
    Sketcher.Constraint("DistanceX", 32, 1, 32, 2, Q("1.399038 mm")),
    Sketcher.Constraint("DistanceX", 37, 2, 37, 1, Q("1.475962 mm")),
    Sketcher.Constraint("DistanceY", 7, 2, 7, 1, Q("1.538462 mm")),
    Sketcher.Constraint("DistanceX", 11, 2, 18, 2, Q("5.6875 mm")),
    Sketcher.Constraint("DistanceX", 19, 2, 24, 2, Q("2.9375 mm")),
    Sketcher.Constraint("DistanceX", 31, 2, 33, 2, Q("3.0625 mm")),
    Sketcher.Constraint("DistanceX", 39, 2, 33, 2, Q("4.1875 mm")),
    Sketcher.Constraint("Distance", 17, Q("8.627138 mm")),
    Sketcher.Constraint("Distance", 23, Q("8.627738 mm")),
    Sketcher.Constraint("Distance", 26, Q("3.023629 mm")),
    Sketcher.Constraint("Distance", 39, Q("5.872081 mm")),
    Sketcher.Constraint("DistanceX", 0, 2, 0, 1, Q("3.897436 mm")),
    Sketcher.Constraint("DistanceX", 16, 2, 16, 1, Q("1.334936 mm")),
    Sketcher.Constraint("DistanceX", 18, 1, 18, 2, Q("1.533654 mm")),
    Sketcher.Constraint("DistanceX", 35, 1, 35, 2, Q("1.453526 mm")),
    Sketcher.Constraint("DistanceX", 40, 2, 40, 1, Q("4.307692 mm")),
    Sketcher.Constraint("DistanceX", 44, 2, 44, 1, Q("2.871795 mm")),
    Sketcher.Constraint("DistanceX", 4, 2, -1, 1, Q("12.461538 mm")),
    Sketcher.Constraint("DistanceX", 10, 2, -1, 1, Q("11.025641 mm")),
    Sketcher.Constraint("DistanceX", 26, 2, -1, 1, Q("2.974359 mm")),
    Sketcher.Constraint("DistanceX", -1, 1, 35, 2, Q("10.717949 mm")),
    Sketcher.Constraint("DistanceY", -1, 1, 38, 2, Q("9.580128 mm")),
    Sketcher.Constraint("DistanceY", 19, 2, 13, 2, Q("0.205128 mm")),
    Sketcher.Constraint("DistanceY", 26, 2, 19, 2, Q("4.213141 mm")),
    Sketcher.Constraint("DistanceX", 22, 2, 28, 2, Q("0.461538 mm")),
    Sketcher.Constraint("DistanceX", 27, 2, 30, 2, Q("0.956731 mm")),
    Sketcher.Constraint("DistanceY", 30, 2, 24, 2, Q("1.975962 mm")),
    Sketcher.Constraint("DistanceX", 33, 2, 36, 2, Q("0.955128 mm")),
])
pad4 = doc.addObject("PartDesign::Pad", "Pad003")
body.addObject(pad4)
pad4.Profile = sketch13
pad4.Length = 0.8
pad4.Reversed = True

sketch14 = doc.addObject("Sketcher::SketchObject", "Sketch013")
body.addObject(sketch14)
sketch14.AttachmentSupport = (doc.XZ_Plane, [""])
sketch14.MapMode = "FlatFace"
sketch14.addGeometry([
    Part.Circle(App.Vector(-80, 10, 0), App.Vector(0, 0, 1), 5),
    Part.Circle(App.Vector(-80, 40, 0), App.Vector(0, 0, 1), 5),
    Part.Circle(App.Vector(80, 10, 0), App.Vector(0, 0, 1), 5),
    Part.Circle(App.Vector(80, 40, 0), App.Vector(0, 0, 1), 5),
], False)
sketch14.addConstraint([
    Sketcher.Constraint("Equal", 0, 1),
    Sketcher.Constraint("Equal", 1, 2),
    Sketcher.Constraint("Equal", 2, 3),
    Sketcher.Constraint("Symmetric", 0, 3, 2, 3, -2),
    Sketcher.Constraint("Symmetric", 1, 3, 3, 3, -2),
    Sketcher.Constraint("Vertical", 0, 3, 1, 3),
    Sketcher.Constraint("Diameter", 0, Q("10 mm")),
    Sketcher.Constraint("DistanceX", 0, 3, -1, 1, Q("80 mm")),
    Sketcher.Constraint("DistanceY", -1, 1, 0, 3, Q("10 mm")),
    Sketcher.Constraint("DistanceY", -1, 1, 1, 3, Q("40 mm")),
])
pad5 = doc.addObject("PartDesign::Pad", "Pad004")
body.addObject(pad5)
pad5.Profile = sketch14
pad5.Length = 3

sketch15 = doc.addObject("Sketcher::SketchObject", "Sketch014")
body.addObject(sketch15)
sketch15.AttachmentSupport = (doc.XY_Plane, [""])
sketch15.MapMode = "FlatFace"
add_polygon(sketch15, [(-111, 47), (-111, 23), (-95, 23), (-95, 47)])
add_polygon(sketch15, [(95, 47), (95, 23), (111, 23), (111, 47)])
add_polygon(sketch15, [(-111, 147), (-111, 123), (-95, 123), (-95, 147)])
add_polygon(sketch15, [(95, 147), (95, 123), (111, 123), (111, 147)])
sketch15.addConstraint([
    Sketcher.Constraint("Vertical", 0),
    Sketcher.Constraint("Horizontal", 1),
    Sketcher.Constraint("Vertical", 2),
    Sketcher.Constraint("Horizontal", 3),
    Sketcher.Constraint("Vertical", 4),
    Sketcher.Constraint("Horizontal", 5),
    Sketcher.Constraint("Vertical", 6),
    Sketcher.Constraint("Horizontal", 7),
    Sketcher.Constraint("Vertical", 8),
    Sketcher.Constraint("Horizontal", 9),
    Sketcher.Constraint("Vertical", 10),
    Sketcher.Constraint("Horizontal", 11),
    Sketcher.Constraint("Vertical", 12),
    Sketcher.Constraint("Horizontal", 13),
    Sketcher.Constraint("Vertical", 14),
    Sketcher.Constraint("Horizontal", 15),
    Sketcher.Constraint("Symmetric", 1, 2, 4, 2, -2),
    Sketcher.Constraint("Symmetric", 3, 2, 6, 2, -2),
    Sketcher.Constraint("Symmetric", 9, 2, 12, 2, -2),
    Sketcher.Constraint("Symmetric", 11, 2, 14, 2, -2),
    Sketcher.Constraint("Vertical", 3, 2, 8, 2),
    Sketcher.Constraint("Vertical", 2, 2, 9, 2),
    Sketcher.Constraint("Equal", 6, 8),
    Sketcher.Constraint("DistanceX", 1, 1, 1, 2, Q("16 mm")),
    Sketcher.Constraint("DistanceY", 0, 2, 0, 1, Q("24 mm")),
    Sketcher.Constraint("DistanceX", 0, 2, -1, 1, Q("111 mm")),
    Sketcher.Constraint("DistanceY", -1, 1, 0, 2, Q("23 mm")),
    Sketcher.Constraint("DistanceY", -1, 1, 8, 2, Q("123 mm")),
])
pad6 = doc.addObject("PartDesign::Pad", "Pad005")
body.addObject(pad6)
pad6.Profile = sketch15
pad6.Length = 5

sketch16 = doc.addObject("Sketcher::SketchObject", "Sketch015")
body.addObject(sketch16)
sketch16.AttachmentSupport = (doc.XY_Plane, [""])
sketch16.MapMode = "FlatFace"
sketch16.addGeometry([
    Part.Circle(App.Vector(-103, 35, 0), App.Vector(0, 0, 1), 2.1),
    Part.Circle(App.Vector(103, 35, 0), App.Vector(0, 0, 1), 2.1),
    Part.Circle(App.Vector(-103, 135, 0), App.Vector(0, 0, 1), 2.1),
    Part.Circle(App.Vector(103, 135, 0), App.Vector(0, 0, 1), 2.1),
], False)
sketch16.addConstraint([
    Sketcher.Constraint("Equal", 0, 1),
    Sketcher.Constraint("Equal", 1, 2),
    Sketcher.Constraint("Equal", 2, 3),
    Sketcher.Constraint("Symmetric", 0, 3, 1, 3, -2),
    Sketcher.Constraint("Symmetric", 2, 3, 3, 3, -2),
    Sketcher.Constraint("Vertical", 0, 3, 2, 3),
    Sketcher.Constraint("Diameter", 0, Q("4.3 mm")),
    Sketcher.Constraint("DistanceX", 0, 3, -1, 1, Q("103 mm")),
    Sketcher.Constraint("DistanceY", -1, 1, 0, 3, Q("35 mm")),
    Sketcher.Constraint("DistanceY", -1, 1, 2, 3, Q("135 mm")),
])
pocket10 = doc.addObject("PartDesign::Pocket", "Pocket009")
body.addObject(pocket10)
pocket10.Profile = sketch16
pocket10.Type = "ThroughAll"
pocket10.Reversed = True

sketch17 = doc.addObject("Sketcher::SketchObject", "Sketch016")
body.addObject(sketch17)
sketch17.Placement = App.Placement(App.Vector(-71.5, 0, 71.5), App.Rotation(App.Vector(0.707106781, 0, 0.707106781), App.Vector(0, 0.999999999, 0), App.Vector(-0.707106781, 0, 0.707106781), "ZXY"))
sketch17.addGeometry(Part.Circle(App.Vector(-11, 120, 0), App.Vector(0, 0, 1), 12), False)
sketch17.addConstraint([
    Sketcher.Constraint("Diameter", 0, Q("23.3 mm")),
    Sketcher.Constraint("DistanceY", -1, 1, 0, 3, Q("120 mm")),
    Sketcher.Constraint("DistanceX", 0, 3, -1, 1, Q("10.606602 mm")),
])
pocket11 = doc.addObject("PartDesign::Pocket", "Pocket010")
body.addObject(pocket11)
pocket11.Profile = sketch17
pocket11.Length = 4

sketch18 = doc.addObject("Sketcher::SketchObject", "Sketch017")
body.addObject(sketch18)
sketch18.Placement = App.Placement(App.Vector(-69.37868, 0, 69.37868), App.Rotation(App.Vector(-0.707106781, 0, -0.707106781), App.Vector(0, 0.999999999, 0), App.Vector(0.707106781, 0, -0.707106781), "ZXY"))
sketch18.addGeometry([
    Part.Circle(App.Vector(24.6, 120, 0), App.Vector(0, 0, 1), 2.2),
    Part.Circle(App.Vector(-3.4, 120, 0), App.Vector(0, 0, 1), 2.2),
], False)
sketch18.addConstraint([
    Sketcher.Constraint("Equal", 0, 1),
    Sketcher.Constraint("Horizontal", 0, 3, 1, 3),
    Sketcher.Constraint("Diameter", 0, Q("4.4 mm")),
    Sketcher.Constraint("DistanceY", -1, 1, 0, 3, Q("120 mm")),
    Sketcher.Constraint("DistanceX", 1, 3, 0, 3, Q("28 mm")),
    Sketcher.Constraint("DistanceX", -1, 1, 0, 3, Q("24.606602 mm")),
])
pad7 = doc.addObject("PartDesign::Pad", "Pad006")
body.addObject(pad7)
pad7.Profile = sketch18
pad7.Length = 1

sketch19 = doc.addObject("Sketcher::SketchObject", "Sketch018")
body.addObject(sketch19)
sketch19.Placement = App.Placement(App.Vector(-68.671573, 0, 68.671573), App.Rotation(App.Vector(-0.707106781, 0, -0.707106781), App.Vector(0, 0.999999999, 0), App.Vector(0.707106781, 0, -0.707106781), "ZXY"))
sketch19.addGeometry([
    Part.Circle(App.Vector(24.6, 120, 0), App.Vector(0, 0, 1), 0.8),
    Part.Circle(App.Vector(-3.4, 120, 0), App.Vector(0, 0, 1), 0.8),
], False)
sketch19.addConstraint([
    Sketcher.Constraint("Equal", 0, 1),
    Sketcher.Constraint("Horizontal", 0, 3, 1, 3),
    Sketcher.Constraint("Diameter", 0, Q("1.6 mm")),
    Sketcher.Constraint("DistanceY", -1, 1, 0, 3, Q("120 mm")),
    Sketcher.Constraint("DistanceX", 1, 3, 0, 3, Q("28 mm")),
    Sketcher.Constraint("DistanceX", -1, 1, 0, 3, Q("24.606602 mm")),
])
pocket12 = doc.addObject("PartDesign::Pocket", "Pocket011")
body.addObject(pocket12)
pocket12.Profile = sketch19
pocket12.Length = 3

sketch20 = doc.addObject("Sketcher::SketchObject", "Sketch019")
body.addObject(sketch20)
sketch20.Placement = App.Placement(App.Vector(71.5, 0, 71.5), App.Rotation(App.Vector(0.707106781, 0, -0.707106781), App.Vector(0, 0.999999999, 0), App.Vector(0.707106781, 0, 0.707106781), "ZXY"))
sketch20.addGeometry(Part.Circle(App.Vector(11, 120, 0), App.Vector(0, 0, 1), 12), False)
sketch20.addConstraint([
    Sketcher.Constraint("Diameter", 0, Q("23.3 mm")),
    Sketcher.Constraint("DistanceY", -1, 1, 0, 3, Q("120 mm")),
    Sketcher.Constraint("DistanceX", -1, 1, 0, 3, Q("10.606602 mm")),
])
pocket13 = doc.addObject("PartDesign::Pocket", "Pocket012")
body.addObject(pocket13)
pocket13.Profile = sketch20
pocket13.Length = 4

sketch21 = doc.addObject("Sketcher::SketchObject", "Sketch020")
body.addObject(sketch21)
sketch21.Placement = App.Placement(App.Vector(69.37868, 0, 69.37868), App.Rotation(App.Vector(-0.707106781, 0, 0.707106781), App.Vector(0, 0.999999999, 0), App.Vector(-0.707106781, 0, -0.707106781), "ZXY"))
sketch21.addGeometry([
    Part.Circle(App.Vector(-24.6, 120, 0), App.Vector(0, 0, 1), 2.2),
    Part.Circle(App.Vector(3.4, 120, 0), App.Vector(0, 0, 1), 2.2),
], False)
sketch21.addConstraint([
    Sketcher.Constraint("Equal", 0, 1),
    Sketcher.Constraint("Horizontal", 0, 3, 1, 3),
    Sketcher.Constraint("Diameter", 0, Q("4.4 mm")),
    Sketcher.Constraint("DistanceY", -1, 1, 0, 3, Q("120 mm")),
    Sketcher.Constraint("DistanceX", 0, 3, 1, 3, Q("28 mm")),
    Sketcher.Constraint("DistanceX", 0, 3, -1, 1, Q("24.606602 mm")),
])
pad8 = doc.addObject("PartDesign::Pad", "Pad007")
body.addObject(pad8)
pad8.Profile = sketch21
pad8.Length = 1

sketch22 = doc.addObject("Sketcher::SketchObject", "Sketch021")
body.addObject(sketch22)
sketch22.Placement = App.Placement(App.Vector(68.671573, 0, 68.671573), App.Rotation(App.Vector(-0.707106781, 0, 0.707106781), App.Vector(0, 0.999999999, 0), App.Vector(-0.707106781, 0, -0.707106781), "ZXY"))
sketch22.addGeometry([
    Part.Circle(App.Vector(-24.6, 120, 0), App.Vector(0, 0, 1), 0.8),
    Part.Circle(App.Vector(3.4, 120, 0), App.Vector(0, 0, 1), 0.8),
], False)
sketch22.addConstraint([
    Sketcher.Constraint("Equal", 0, 1),
    Sketcher.Constraint("Horizontal", 0, 3, 1, 3),
    Sketcher.Constraint("Diameter", 0, Q("1.6 mm")),
    Sketcher.Constraint("DistanceY", -1, 1, 0, 3, Q("120 mm")),
    Sketcher.Constraint("DistanceX", 0, 3, 1, 3, Q("28 mm")),
    Sketcher.Constraint("DistanceX", 0, 3, -1, 1, Q("24.606602 mm")),
])
pocket14 = doc.addObject("PartDesign::Pocket", "Pocket013")
body.addObject(pocket14)
pocket14.Profile = sketch22
pocket14.Length = 3

doc.recompute()
